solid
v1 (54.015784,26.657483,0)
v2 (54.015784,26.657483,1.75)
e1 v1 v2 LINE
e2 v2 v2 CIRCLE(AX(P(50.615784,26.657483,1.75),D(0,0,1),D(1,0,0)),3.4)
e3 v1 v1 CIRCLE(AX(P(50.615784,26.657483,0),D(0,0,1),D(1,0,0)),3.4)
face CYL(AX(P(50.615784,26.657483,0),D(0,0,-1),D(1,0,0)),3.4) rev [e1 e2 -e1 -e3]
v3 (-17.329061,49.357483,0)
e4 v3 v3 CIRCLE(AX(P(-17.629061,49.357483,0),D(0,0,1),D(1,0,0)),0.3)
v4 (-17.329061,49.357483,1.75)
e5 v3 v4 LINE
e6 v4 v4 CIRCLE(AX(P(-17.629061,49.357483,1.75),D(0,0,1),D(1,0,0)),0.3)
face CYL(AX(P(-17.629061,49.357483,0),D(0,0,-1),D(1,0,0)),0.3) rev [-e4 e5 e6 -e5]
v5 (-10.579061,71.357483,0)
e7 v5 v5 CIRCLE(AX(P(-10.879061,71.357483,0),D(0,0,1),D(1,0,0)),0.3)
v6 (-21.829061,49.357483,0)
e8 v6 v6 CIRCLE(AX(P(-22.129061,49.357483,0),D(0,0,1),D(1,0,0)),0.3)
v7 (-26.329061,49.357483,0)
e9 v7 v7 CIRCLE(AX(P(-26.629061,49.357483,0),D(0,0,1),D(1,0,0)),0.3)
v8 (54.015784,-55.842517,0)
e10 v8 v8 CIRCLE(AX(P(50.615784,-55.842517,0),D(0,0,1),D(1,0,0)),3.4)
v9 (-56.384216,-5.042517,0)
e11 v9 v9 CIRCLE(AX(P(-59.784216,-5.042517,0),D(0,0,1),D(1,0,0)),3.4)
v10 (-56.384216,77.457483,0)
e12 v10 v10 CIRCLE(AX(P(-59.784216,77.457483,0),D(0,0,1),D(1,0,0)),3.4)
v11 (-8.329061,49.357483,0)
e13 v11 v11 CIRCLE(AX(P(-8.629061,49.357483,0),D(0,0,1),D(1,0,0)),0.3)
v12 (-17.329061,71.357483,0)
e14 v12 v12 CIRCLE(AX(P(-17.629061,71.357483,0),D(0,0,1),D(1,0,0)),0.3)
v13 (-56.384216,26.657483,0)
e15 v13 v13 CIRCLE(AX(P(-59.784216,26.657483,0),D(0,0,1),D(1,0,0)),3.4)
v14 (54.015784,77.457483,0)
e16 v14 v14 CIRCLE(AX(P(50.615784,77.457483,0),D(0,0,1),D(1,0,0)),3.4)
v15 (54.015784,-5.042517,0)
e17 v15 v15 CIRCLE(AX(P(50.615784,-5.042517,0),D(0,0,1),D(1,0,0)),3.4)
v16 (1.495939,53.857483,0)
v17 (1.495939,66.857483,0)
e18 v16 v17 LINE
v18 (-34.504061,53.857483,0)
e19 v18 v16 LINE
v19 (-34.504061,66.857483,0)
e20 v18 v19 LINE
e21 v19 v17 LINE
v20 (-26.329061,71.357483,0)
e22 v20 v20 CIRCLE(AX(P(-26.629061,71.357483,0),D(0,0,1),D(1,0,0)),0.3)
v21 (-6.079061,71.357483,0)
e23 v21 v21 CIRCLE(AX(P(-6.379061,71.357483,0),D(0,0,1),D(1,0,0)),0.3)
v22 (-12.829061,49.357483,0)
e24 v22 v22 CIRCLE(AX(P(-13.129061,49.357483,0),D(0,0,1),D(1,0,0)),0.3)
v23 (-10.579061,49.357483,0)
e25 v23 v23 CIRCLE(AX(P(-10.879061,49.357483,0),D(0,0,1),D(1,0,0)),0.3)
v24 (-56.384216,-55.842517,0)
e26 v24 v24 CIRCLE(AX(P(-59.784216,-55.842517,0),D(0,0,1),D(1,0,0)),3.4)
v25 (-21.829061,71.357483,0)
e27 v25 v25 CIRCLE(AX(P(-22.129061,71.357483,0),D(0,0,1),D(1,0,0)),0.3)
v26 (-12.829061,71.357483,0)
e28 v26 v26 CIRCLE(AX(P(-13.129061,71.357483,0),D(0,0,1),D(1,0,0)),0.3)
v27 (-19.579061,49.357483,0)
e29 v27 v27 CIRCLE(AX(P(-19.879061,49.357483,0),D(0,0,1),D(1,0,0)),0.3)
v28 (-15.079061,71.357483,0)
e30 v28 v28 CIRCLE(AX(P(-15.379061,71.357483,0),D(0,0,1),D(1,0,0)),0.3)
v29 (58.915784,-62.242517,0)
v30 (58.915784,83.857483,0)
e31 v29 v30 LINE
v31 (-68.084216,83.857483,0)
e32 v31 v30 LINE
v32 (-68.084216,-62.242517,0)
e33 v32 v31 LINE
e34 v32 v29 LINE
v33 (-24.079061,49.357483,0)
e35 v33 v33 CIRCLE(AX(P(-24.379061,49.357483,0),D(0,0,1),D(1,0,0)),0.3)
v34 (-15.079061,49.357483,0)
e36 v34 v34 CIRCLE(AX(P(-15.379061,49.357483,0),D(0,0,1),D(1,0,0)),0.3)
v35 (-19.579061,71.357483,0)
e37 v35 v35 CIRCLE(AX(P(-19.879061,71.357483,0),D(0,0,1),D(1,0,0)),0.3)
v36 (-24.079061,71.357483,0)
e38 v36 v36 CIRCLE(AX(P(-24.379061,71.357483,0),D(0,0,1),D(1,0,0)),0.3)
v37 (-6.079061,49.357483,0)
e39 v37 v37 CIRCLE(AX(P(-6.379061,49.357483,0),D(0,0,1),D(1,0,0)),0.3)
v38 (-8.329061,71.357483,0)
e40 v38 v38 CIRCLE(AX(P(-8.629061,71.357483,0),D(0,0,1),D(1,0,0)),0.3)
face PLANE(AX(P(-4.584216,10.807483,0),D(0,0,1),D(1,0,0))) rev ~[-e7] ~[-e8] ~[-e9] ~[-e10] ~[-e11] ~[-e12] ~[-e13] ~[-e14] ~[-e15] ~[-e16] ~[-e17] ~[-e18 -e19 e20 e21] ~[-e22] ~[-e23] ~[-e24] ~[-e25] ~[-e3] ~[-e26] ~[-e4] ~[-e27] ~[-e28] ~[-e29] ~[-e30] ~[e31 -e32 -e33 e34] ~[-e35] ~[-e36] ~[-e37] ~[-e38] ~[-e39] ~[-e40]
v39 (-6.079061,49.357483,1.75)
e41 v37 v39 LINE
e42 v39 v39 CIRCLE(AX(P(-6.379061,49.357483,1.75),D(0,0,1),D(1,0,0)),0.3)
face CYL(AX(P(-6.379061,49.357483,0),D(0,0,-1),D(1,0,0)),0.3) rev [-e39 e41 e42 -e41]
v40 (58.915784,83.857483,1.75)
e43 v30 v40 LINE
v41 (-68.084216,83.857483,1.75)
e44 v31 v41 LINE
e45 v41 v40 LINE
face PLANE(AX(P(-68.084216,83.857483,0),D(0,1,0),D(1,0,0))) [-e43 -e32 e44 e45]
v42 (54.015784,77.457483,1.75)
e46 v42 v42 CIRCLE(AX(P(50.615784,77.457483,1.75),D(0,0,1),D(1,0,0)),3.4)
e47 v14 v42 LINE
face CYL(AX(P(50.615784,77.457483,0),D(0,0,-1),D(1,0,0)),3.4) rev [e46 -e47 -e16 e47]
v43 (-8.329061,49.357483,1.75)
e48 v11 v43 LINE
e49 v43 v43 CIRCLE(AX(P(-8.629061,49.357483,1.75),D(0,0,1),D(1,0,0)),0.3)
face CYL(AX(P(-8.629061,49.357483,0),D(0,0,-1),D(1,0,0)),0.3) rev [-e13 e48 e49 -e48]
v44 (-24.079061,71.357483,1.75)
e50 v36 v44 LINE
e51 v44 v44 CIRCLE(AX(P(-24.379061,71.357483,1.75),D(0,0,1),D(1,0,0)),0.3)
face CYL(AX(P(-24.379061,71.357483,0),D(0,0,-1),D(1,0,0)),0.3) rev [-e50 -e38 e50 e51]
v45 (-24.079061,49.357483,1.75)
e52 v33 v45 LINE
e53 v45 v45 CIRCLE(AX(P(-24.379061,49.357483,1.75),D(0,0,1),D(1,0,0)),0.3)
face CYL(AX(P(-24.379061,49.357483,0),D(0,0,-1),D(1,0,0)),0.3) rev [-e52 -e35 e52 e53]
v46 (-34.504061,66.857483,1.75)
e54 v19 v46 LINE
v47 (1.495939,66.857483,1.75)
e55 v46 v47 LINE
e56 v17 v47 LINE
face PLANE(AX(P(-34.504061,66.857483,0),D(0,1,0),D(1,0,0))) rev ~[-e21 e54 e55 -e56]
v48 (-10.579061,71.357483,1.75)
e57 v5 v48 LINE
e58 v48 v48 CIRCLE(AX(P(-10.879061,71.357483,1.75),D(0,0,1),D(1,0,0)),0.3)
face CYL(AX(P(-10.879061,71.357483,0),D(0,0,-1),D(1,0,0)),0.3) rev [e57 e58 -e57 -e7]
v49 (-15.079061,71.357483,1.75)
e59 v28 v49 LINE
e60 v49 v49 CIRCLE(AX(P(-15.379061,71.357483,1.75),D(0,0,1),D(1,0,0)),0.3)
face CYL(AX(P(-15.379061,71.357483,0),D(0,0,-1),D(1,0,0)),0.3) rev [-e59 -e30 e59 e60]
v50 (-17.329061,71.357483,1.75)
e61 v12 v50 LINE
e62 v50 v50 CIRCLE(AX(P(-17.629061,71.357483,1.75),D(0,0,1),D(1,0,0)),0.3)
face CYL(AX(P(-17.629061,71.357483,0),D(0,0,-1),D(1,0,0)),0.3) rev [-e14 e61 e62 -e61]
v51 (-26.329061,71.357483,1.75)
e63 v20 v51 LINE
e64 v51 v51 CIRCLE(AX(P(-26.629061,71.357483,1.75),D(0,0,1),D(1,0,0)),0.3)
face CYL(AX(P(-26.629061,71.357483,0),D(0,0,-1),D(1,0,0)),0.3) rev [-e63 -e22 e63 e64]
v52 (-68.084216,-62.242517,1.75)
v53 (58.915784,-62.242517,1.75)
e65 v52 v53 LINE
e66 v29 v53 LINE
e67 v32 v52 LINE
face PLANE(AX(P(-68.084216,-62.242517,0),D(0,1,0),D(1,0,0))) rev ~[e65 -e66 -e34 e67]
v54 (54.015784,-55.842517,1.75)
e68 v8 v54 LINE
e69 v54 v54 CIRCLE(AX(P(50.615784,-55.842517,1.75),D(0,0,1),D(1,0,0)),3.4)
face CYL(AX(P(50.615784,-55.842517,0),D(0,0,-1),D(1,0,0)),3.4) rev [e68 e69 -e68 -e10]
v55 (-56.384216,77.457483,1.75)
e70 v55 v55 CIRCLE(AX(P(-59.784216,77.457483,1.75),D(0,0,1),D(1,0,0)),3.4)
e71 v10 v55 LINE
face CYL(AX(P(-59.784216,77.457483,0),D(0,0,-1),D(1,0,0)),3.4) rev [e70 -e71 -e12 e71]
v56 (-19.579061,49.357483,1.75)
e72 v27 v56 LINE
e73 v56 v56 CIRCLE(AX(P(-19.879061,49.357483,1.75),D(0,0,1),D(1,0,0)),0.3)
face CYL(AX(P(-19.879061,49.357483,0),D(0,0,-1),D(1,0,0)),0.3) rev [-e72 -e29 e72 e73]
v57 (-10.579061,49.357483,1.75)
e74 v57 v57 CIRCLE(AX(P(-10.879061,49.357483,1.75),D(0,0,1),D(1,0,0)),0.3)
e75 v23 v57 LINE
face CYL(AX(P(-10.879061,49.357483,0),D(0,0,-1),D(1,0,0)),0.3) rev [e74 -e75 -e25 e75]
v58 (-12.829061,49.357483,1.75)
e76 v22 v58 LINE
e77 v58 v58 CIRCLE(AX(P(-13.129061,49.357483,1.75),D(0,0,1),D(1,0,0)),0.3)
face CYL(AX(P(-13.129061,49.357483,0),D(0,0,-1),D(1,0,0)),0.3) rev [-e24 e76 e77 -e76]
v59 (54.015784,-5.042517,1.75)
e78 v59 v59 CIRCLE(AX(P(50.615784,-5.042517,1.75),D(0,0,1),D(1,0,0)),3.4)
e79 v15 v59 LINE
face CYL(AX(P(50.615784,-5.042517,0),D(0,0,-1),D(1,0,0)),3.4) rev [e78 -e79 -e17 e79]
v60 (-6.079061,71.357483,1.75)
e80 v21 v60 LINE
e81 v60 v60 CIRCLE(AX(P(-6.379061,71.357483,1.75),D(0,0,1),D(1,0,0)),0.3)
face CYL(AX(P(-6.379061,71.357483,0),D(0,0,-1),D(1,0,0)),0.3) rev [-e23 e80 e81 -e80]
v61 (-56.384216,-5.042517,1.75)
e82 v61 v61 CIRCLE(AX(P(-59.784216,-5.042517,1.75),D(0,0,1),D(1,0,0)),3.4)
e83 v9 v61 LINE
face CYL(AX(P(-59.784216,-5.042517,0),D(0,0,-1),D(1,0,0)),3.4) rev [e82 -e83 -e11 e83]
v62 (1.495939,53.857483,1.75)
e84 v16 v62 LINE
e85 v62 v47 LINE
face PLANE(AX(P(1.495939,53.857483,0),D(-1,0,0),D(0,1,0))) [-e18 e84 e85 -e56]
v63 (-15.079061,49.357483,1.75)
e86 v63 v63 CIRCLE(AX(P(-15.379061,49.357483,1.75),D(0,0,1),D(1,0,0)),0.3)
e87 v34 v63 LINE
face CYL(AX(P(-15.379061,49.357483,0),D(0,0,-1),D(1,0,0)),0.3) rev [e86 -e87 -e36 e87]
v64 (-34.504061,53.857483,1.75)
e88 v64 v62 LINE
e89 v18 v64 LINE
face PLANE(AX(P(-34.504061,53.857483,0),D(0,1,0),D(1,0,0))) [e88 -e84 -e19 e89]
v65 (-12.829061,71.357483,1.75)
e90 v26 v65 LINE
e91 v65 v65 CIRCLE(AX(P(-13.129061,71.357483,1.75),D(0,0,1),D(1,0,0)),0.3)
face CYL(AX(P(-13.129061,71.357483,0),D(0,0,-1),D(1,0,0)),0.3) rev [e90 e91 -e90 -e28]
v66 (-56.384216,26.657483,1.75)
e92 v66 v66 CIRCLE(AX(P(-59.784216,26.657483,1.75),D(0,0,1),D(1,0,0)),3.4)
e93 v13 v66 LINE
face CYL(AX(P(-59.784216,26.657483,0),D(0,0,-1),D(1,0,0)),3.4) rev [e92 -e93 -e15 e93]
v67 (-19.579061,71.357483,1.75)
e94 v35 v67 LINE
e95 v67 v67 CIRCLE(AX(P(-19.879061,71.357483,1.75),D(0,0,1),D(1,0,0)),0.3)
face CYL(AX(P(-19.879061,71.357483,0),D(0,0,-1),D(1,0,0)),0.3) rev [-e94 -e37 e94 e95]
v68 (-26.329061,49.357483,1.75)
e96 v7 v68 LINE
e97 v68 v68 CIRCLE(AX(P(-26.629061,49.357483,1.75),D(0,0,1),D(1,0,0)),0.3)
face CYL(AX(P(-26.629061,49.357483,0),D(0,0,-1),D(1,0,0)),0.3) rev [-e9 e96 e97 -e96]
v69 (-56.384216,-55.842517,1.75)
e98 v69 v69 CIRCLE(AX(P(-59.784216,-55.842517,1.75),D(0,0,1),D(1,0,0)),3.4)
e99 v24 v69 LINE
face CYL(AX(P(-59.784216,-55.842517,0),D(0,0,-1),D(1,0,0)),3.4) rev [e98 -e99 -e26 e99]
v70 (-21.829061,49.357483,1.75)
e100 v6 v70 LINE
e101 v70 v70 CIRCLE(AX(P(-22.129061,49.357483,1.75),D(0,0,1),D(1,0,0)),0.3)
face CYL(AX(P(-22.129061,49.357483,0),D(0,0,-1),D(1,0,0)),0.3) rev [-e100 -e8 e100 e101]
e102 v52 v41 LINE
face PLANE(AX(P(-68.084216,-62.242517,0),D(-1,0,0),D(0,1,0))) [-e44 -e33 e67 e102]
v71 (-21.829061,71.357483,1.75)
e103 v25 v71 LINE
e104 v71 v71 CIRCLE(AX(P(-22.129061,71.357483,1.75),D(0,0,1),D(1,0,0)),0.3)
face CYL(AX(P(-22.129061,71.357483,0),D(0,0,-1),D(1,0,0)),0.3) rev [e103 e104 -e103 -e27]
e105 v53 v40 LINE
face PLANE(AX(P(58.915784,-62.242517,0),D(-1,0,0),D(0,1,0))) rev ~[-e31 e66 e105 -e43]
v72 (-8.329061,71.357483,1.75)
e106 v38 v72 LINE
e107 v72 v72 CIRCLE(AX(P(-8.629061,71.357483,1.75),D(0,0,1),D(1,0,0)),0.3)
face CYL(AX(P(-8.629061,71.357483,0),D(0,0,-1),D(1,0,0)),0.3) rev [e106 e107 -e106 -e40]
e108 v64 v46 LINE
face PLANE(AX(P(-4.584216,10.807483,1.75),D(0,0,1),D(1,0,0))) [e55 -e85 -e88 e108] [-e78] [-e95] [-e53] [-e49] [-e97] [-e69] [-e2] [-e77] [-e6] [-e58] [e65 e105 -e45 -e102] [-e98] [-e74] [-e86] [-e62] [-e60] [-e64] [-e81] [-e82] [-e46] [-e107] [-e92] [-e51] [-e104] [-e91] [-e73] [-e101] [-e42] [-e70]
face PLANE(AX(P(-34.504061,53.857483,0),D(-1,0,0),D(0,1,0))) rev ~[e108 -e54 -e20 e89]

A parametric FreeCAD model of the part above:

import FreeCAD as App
import Part
import Sketcher

doc = App.newDocument("Part")
params = doc.addObject("Spreadsheet::Sheet", "Params")
for row, (alias, value) in enumerate([
    ("sketch1_diameter", "6.8 mm"),
    ("sketch1_diameter2", "0.6 mm"),
    ("sketch1_width", "127 mm"),
    ("sketch1_width2", "36 mm"),
    ("sketch1_height", "13 mm"),
    ("pad1_length", "1.75 mm"),
], start=1):
    params.set(f"A{row}", alias)
    params.set(f"B{row}", "=" + value)
    params.setAlias(f"B{row}", alias)

body = doc.addObject("PartDesign::Body", "Body")

sketch1 = body.newObject("Sketcher::SketchObject", "Sketch")
sketch1.AttachmentSupport = (doc.getObject("XY_Plane"), [""])
sketch1.MapMode = "FlatFace"
sketch1.addGeometry(Part.LineSegment(App.Vector(-68.08, 83.86, 0), App.Vector(-68.08, -62.24, 0)), False)
sketch1.addGeometry(Part.LineSegment(App.Vector(-68.08, -62.24, 0), App.Vector(58.92, -62.24, 0)), False)
sketch1.addGeometry(Part.LineSegment(App.Vector(58.92, -62.24, 0), App.Vector(58.92, 83.86, 0)), False)
sketch1.addGeometry(Part.LineSegment(App.Vector(58.92, 83.86, 0), App.Vector(-68.08, 83.86, 0)), False)
sketch1.addGeometry(Part.Circle(App.Vector(-59.78, -55.84, 0), App.Vector(0, 0, 1), 3.4), False)
sketch1.addGeometry(Part.Circle(App.Vector(-59.78, -5.04, 0), App.Vector(0, 0, 1), 3.4), False)
sketch1.addGeometry(Part.Circle(App.Vector(50.62, -55.84, 0), App.Vector(0, 0, 1), 3.4), False)
sketch1.addGeometry(Part.Circle(App.Vector(50.62, -5.04, 0), App.Vector(0, 0, 1), 3.4), False)
sketch1.addGeometry(Part.Circle(App.Vector(-59.78, 26.66, 0), App.Vector(0, 0, 1), 3.4), False)
sketch1.addGeometry(Part.Circle(App.Vector(-59.78, 77.46, 0), App.Vector(0, 0, 1), 3.4), False)
sketch1.addGeometry(Part.Circle(App.Vector(-26.63, 49.36, 0), App.Vector(0, 0, 1), 0.3), False)
sketch1.addGeometry(Part.Circle(App.Vector(-24.38, 49.36, 0), App.Vector(0, 0, 1), 0.3), False)
sketch1.addGeometry(Part.Circle(App.Vector(-22.13, 49.36, 0), App.Vector(0, 0, 1), 0.3), False)
sketch1.addGeometry(Part.Circle(App.Vector(-19.88, 49.36, 0), App.Vector(0, 0, 1), 0.3), False)
sketch1.addGeometry(Part.Circle(App.Vector(-17.63, 49.36, 0), App.Vector(0, 0, 1), 0.3), False)
sketch1.addGeometry(Part.Circle(App.Vector(-15.38, 49.36, 0), App.Vector(0, 0, 1), 0.3), False)
sketch1.addGeometry(Part.Circle(App.Vector(-13.13, 49.36, 0), App.Vector(0, 0, 1), 0.3), False)
sketch1.addGeometry(Part.Circle(App.Vector(-10.88, 49.36, 0), App.Vector(0, 0, 1), 0.3), False)
sketch1.addGeometry(Part.Circle(App.Vector(-8.63, 49.36, 0), App.Vector(0, 0, 1), 0.3), False)
sketch1.addGeometry(Part.Circle(App.Vector(-6.38, 49.36, 0), App.Vector(0, 0, 1), 0.3), False)
sketch1.addGeometry(Part.LineSegment(App.Vector(1.5, 53.86, 0), App.Vector(-34.5, 53.86, 0)), False)
sketch1.addGeometry(Part.LineSegment(App.Vector(-34.5, 53.86, 0), App.Vector(-34.5, 66.86, 0)), False)
sketch1.addGeometry(Part.LineSegment(App.Vector(-34.5, 66.86, 0), App.Vector(1.5, 66.86, 0)), False)
sketch1.addGeometry(Part.LineSegment(App.Vector(1.5, 66.86, 0), App.Vector(1.5, 53.86, 0)), False)
sketch1.addGeometry(Part.Circle(App.Vector(-26.63, 71.36, 0), App.Vector(0, 0, 1), 0.3), False)
sketch1.addGeometry(Part.Circle(App.Vector(-24.38, 71.36, 0), App.Vector(0, 0, 1), 0.3), False)
sketch1.addGeometry(Part.Circle(App.Vector(-22.13, 71.36, 0), App.Vector(0, 0, 1), 0.3), False)
sketch1.addGeometry(Part.Circle(App.Vector(-19.88, 71.36, 0), App.Vector(0, 0, 1), 0.3), False)
sketch1.addGeometry(Part.Circle(App.Vector(-17.63, 71.36, 0), App.Vector(0, 0, 1), 0.3), False)
sketch1.addGeometry(Part.Circle(App.Vector(-15.38, 71.36, 0), App.Vector(0, 0, 1), 0.3), False)
sketch1.addGeometry(Part.Circle(App.Vector(-13.13, 71.36, 0), App.Vector(0, 0, 1), 0.3), False)
sketch1.addGeometry(Part.Circle(App.Vector(-10.88, 71.36, 0), App.Vector(0, 0, 1), 0.3), False)
sketch1.addGeometry(Part.Circle(App.Vector(-8.63, 71.36, 0), App.Vector(0, 0, 1), 0.3), False)
sketch1.addGeometry(Part.Circle(App.Vector(-6.38, 71.36, 0), App.Vector(0, 0, 1), 0.3), False)
sketch1.addGeometry(Part.Circle(App.Vector(50.62, 26.66, 0), App.Vector(0, 0, 1), 3.4), False)
sketch1.addGeometry(Part.Circle(App.Vector(50.62, 77.46, 0), App.Vector(0, 0, 1), 3.4), False)
sketch1.addConstraint(Sketcher.Constraint("Coincident", 0, 2, 1, 1))
sketch1.addConstraint(Sketcher.Constraint("Coincident", 1, 2, 2, 1))
sketch1.addConstraint(Sketcher.Constraint("Coincident", 2, 2, 3, 1))
sketch1.addConstraint(Sketcher.Constraint("Coincident", 3, 2, 0, 1))
sketch1.addConstraint(Sketcher.Constraint("Coincident", 20, 2, 21, 1))
sketch1.addConstraint(Sketcher.Constraint("Coincident", 21, 2, 22, 1))
sketch1.addConstraint(Sketcher.Constraint("Coincident", 22, 2, 23, 1))
sketch1.addConstraint(Sketcher.Constraint("Coincident", 23, 2, 20, 1))
sketch1.addConstraint(Sketcher.Constraint("Vertical", 0))
sketch1.addConstraint(Sketcher.Constraint("Horizontal", 1))
sketch1.addConstraint(Sketcher.Constraint("Vertical", 2))
sketch1.addConstraint(Sketcher.Constraint("Horizontal", 3))
sketch1.addConstraint(Sketcher.Constraint("Horizontal", 20))
sketch1.addConstraint(Sketcher.Constraint("Vertical", 21))
sketch1.addConstraint(Sketcher.Constraint("Horizontal", 22))
sketch1.addConstraint(Sketcher.Constraint("Vertical", 23))
sketch1.addConstraint(Sketcher.Constraint("Equal", 4, 5))
sketch1.addConstraint(Sketcher.Constraint("Equal", 5, 6))
sketch1.addConstraint(Sketcher.Constraint("Equal", 6, 7))
sketch1.addConstraint(Sketcher.Constraint("Equal", 7, 8))
sketch1.addConstraint(Sketcher.Constraint("Equal", 8, 9))
sketch1.addConstraint(Sketcher.Constraint("Equal", 10, 11))
sketch1.addConstraint(Sketcher.Constraint("Equal", 11, 12))
sketch1.addConstraint(Sketcher.Constraint("Equal", 12, 13))
sketch1.addConstraint(Sketcher.Constraint("Equal", 13, 14))
sketch1.addConstraint(Sketcher.Constraint("Equal", 14, 15))
sketch1.addConstraint(Sketcher.Constraint("Equal", 15, 16))
sketch1.addConstraint(Sketcher.Constraint("Equal", 16, 17))
sketch1.addConstraint(Sketcher.Constraint("Equal", 17, 18))
sketch1.addConstraint(Sketcher.Constraint("Equal", 18, 19))
sketch1.addConstraint(Sketcher.Constraint("Equal", 19, 24))
sketch1.addConstraint(Sketcher.Constraint("Equal", 24, 25))
sketch1.addConstraint(Sketcher.Constraint("Equal", 25, 26))
sketch1.addConstraint(Sketcher.Constraint("Equal", 26, 27))
sketch1.addConstraint(Sketcher.Constraint("Equal", 27, 28))
sketch1.addConstraint(Sketcher.Constraint("Equal", 28, 29))
sketch1.addConstraint(Sketcher.Constraint("Equal", 29, 30))
sketch1.addConstraint(Sketcher.Constraint("Equal", 30, 31))
sketch1.addConstraint(Sketcher.Constraint("Equal", 31, 32))
sketch1.addConstraint(Sketcher.Constraint("Equal", 32, 33))
sketch1.addConstraint(Sketcher.Constraint("Equal", 9, 34))
sketch1.addConstraint(Sketcher.Constraint("Equal", 34, 35))
sketch1.addConstraint(Sketcher.Constraint("Horizontal", 4, 3, 6, 3))
sketch1.addConstraint(Sketcher.Constraint("Horizontal", 5, 3, 7, 3))
sketch1.addConstraint(Sketcher.Constraint("Horizontal", 10, 3, 11, 3))
sketch1.addConstraint(Sketcher.Constraint("Horizontal", 11, 3, 12, 3))
sketch1.addConstraint(Sketcher.Constraint("Horizontal", 12, 3, 13, 3))
sketch1.addConstraint(Sketcher.Constraint("Horizontal", 13, 3, 14, 3))
sketch1.addConstraint(Sketcher.Constraint("Horizontal", 14, 3, 15, 3))
sketch1.addConstraint(Sketcher.Constraint("Horizontal", 15, 3, 16, 3))
sketch1.addConstraint(Sketcher.Constraint("Horizontal", 16, 3, 17, 3))
sketch1.addConstraint(Sketcher.Constraint("Horizontal", 17, 3, 18, 3))
sketch1.addConstraint(Sketcher.Constraint("Horizontal", 18, 3, 19, 3))
sketch1.addConstraint(Sketcher.Constraint("Horizontal", 24, 3, 25, 3))
sketch1.addConstraint(Sketcher.Constraint("Horizontal", 25, 3, 26, 3))
sketch1.addConstraint(Sketcher.Constraint("Horizontal", 26, 3, 27, 3))
sketch1.addConstraint(Sketcher.Constraint("Horizontal", 27, 3, 28, 3))
sketch1.addConstraint(Sketcher.Constraint("Horizontal", 28, 3, 29, 3))
sketch1.addConstraint(Sketcher.Constraint("Horizontal", 29, 3, 30, 3))
sketch1.addConstraint(Sketcher.Constraint("Horizontal", 30, 3, 31, 3))
sketch1.addConstraint(Sketcher.Constraint("Horizontal", 31, 3, 32, 3))
sketch1.addConstraint(Sketcher.Constraint("Horizontal", 32, 3, 33, 3))
sketch1.addConstraint(Sketcher.Constraint("Horizontal", 8, 3, 34, 3))
sketch1.addConstraint(Sketcher.Constraint("Horizontal", 9, 3, 35, 3))
sketch1.addConstraint(Sketcher.Constraint("Vertical", 4, 3, 5, 3))
sketch1.addConstraint(Sketcher.Constraint("Vertical", 6, 3, 7, 3))
sketch1.addConstraint(Sketcher.Constraint("Vertical", 5, 3, 8, 3))
sketch1.addConstraint(Sketcher.Constraint("Vertical", 8, 3, 9, 3))
sketch1.addConstraint(Sketcher.Constraint("Vertical", 10, 3, 24, 3))
sketch1.addConstraint(Sketcher.Constraint("Vertical", 11, 3, 25, 3))
sketch1.addConstraint(Sketcher.Constraint("Vertical", 12, 3, 26, 3))
sketch1.addConstraint(Sketcher.Constraint("Vertical", 13, 3, 27, 3))
sketch1.addConstraint(Sketcher.Constraint("Vertical", 14, 3, 28, 3))
sketch1.addConstraint(Sketcher.Constraint("Vertical", 15, 3, 29, 3))
sketch1.addConstraint(Sketcher.Constraint("Vertical", 16, 3, 30, 3))
sketch1.addConstraint(Sketcher.Constraint("Vertical", 17, 3, 31, 3))
sketch1.addConstraint(Sketcher.Constraint("Vertical", 18, 3, 32, 3))
sketch1.addConstraint(Sketcher.Constraint("Vertical", 19, 3, 33, 3))
sketch1.addConstraint(Sketcher.Constraint("Vertical", 7, 3, 34, 3))
sketch1.addConstraint(Sketcher.Constraint("Vertical", 34, 3, 35, 3))
sketch1.addConstraint(Sketcher.Constraint("Diameter", 4, 6.8))
sketch1.addConstraint(Sketcher.Constraint("Diameter", 10, 0.6))
sketch1.addConstraint(Sketcher.Constraint("DistanceX", 1, 1, 1, 2, 127.0))
sketch1.addConstraint(Sketcher.Constraint("DistanceX", 20, 2, 20, 1, 36.0))
sketch1.addConstraint(Sketcher.Constraint("DistanceY", 21, 1, 21, 2, 13.0))
sketch1.addConstraint(Sketcher.Constraint("DistanceY", 0, 2, 0, 1, 146.1))
sketch1.addConstraint(Sketcher.Constraint("DistanceX", 10, 3, 14, 3, 9.0))
sketch1.addConstraint(Sketcher.Constraint("DistanceX", 11, 3, 15, 3, 9.0))
sketch1.addConstraint(Sketcher.Constraint("DistanceX", 12, 3, 16, 3, 9.0))
sketch1.addConstraint(Sketcher.Constraint("DistanceX", 13, 3, 17, 3, 9.0))
sketch1.addConstraint(Sketcher.Constraint("DistanceX", 14, 3, 18, 3, 9.0))
sketch1.addConstraint(Sketcher.Constraint("DistanceX", 15, 3, 19, 3, 9.0))
sketch1.addConstraint(Sketcher.Constraint("DistanceY", 10, 3, 24, 3, 22.0))
sketch1.addConstraint(Sketcher.Constraint("DistanceY", 4, 3, 5, 3, 50.8))
sketch1.addConstraint(Sketcher.Constraint("DistanceX", 4, 3, 6, 3, 110.4))
sketch1.addConstraint(Sketcher.Constraint("DistanceY", 5, 3, 8, 3, 31.7))
sketch1.addConstraint(Sketcher.Constraint("DistanceY", 8, 3, 9, 3, 50.8))
sketch1.addConstraint(Sketcher.Constraint("DistanceY", 8, 3, 10, 3, 22.7))
sketch1.addConstraint(Sketcher.Constraint("DistanceX", 10, 3, 12, 3, 4.5))
sketch1.addConstraint(Sketcher.Constraint("DistanceX", 11, 3, 13, 3, 4.5))
sketch1.addConstraint(Sketcher.Constraint("DistanceX", 0, 2, 4, 3, 8.3))
sketch1.addConstraint(Sketcher.Constraint("DistanceY", 0, 2, 4, 3, 6.4))
sketch1.addConstraint(Sketcher.Constraint("DistanceY", 10, 3, 20, 2, 4.5))
sketch1.addConstraint(Sketcher.Constraint("DistanceX", 10, 3, 11, 3, 2.25))
sketch1.addConstraint(Sketcher.Constraint("DistanceX", 20, 2, 10, 3, 7.875))
sketch1.addConstraint(Sketcher.Constraint("DistanceX", 10, 3, -1, 1, 26.629061))
sketch1.addConstraint(Sketcher.Constraint("DistanceX", 4, 3, -1, 1, 59.784216))
sketch1.addConstraint(Sketcher.Constraint("DistanceY", 4, 3, -1, 1, 55.842517))
sketch1.setExpression("Constraints[80]", "Params.sketch1_diameter")
sketch1.setExpression("Constraints[81]", "Params.sketch1_diameter2")
sketch1.setExpression("Constraints[82]", "Params.sketch1_width")
sketch1.setExpression("Constraints[83]", "Params.sketch1_width2")
sketch1.setExpression("Constraints[84]", "Params.sketch1_height")
pad1 = body.newObject("PartDesign::Pad", "Pad")
pad1.Profile = sketch1
pad1.setExpression("Length", "Params.pad1_length")

doc.recompute()
